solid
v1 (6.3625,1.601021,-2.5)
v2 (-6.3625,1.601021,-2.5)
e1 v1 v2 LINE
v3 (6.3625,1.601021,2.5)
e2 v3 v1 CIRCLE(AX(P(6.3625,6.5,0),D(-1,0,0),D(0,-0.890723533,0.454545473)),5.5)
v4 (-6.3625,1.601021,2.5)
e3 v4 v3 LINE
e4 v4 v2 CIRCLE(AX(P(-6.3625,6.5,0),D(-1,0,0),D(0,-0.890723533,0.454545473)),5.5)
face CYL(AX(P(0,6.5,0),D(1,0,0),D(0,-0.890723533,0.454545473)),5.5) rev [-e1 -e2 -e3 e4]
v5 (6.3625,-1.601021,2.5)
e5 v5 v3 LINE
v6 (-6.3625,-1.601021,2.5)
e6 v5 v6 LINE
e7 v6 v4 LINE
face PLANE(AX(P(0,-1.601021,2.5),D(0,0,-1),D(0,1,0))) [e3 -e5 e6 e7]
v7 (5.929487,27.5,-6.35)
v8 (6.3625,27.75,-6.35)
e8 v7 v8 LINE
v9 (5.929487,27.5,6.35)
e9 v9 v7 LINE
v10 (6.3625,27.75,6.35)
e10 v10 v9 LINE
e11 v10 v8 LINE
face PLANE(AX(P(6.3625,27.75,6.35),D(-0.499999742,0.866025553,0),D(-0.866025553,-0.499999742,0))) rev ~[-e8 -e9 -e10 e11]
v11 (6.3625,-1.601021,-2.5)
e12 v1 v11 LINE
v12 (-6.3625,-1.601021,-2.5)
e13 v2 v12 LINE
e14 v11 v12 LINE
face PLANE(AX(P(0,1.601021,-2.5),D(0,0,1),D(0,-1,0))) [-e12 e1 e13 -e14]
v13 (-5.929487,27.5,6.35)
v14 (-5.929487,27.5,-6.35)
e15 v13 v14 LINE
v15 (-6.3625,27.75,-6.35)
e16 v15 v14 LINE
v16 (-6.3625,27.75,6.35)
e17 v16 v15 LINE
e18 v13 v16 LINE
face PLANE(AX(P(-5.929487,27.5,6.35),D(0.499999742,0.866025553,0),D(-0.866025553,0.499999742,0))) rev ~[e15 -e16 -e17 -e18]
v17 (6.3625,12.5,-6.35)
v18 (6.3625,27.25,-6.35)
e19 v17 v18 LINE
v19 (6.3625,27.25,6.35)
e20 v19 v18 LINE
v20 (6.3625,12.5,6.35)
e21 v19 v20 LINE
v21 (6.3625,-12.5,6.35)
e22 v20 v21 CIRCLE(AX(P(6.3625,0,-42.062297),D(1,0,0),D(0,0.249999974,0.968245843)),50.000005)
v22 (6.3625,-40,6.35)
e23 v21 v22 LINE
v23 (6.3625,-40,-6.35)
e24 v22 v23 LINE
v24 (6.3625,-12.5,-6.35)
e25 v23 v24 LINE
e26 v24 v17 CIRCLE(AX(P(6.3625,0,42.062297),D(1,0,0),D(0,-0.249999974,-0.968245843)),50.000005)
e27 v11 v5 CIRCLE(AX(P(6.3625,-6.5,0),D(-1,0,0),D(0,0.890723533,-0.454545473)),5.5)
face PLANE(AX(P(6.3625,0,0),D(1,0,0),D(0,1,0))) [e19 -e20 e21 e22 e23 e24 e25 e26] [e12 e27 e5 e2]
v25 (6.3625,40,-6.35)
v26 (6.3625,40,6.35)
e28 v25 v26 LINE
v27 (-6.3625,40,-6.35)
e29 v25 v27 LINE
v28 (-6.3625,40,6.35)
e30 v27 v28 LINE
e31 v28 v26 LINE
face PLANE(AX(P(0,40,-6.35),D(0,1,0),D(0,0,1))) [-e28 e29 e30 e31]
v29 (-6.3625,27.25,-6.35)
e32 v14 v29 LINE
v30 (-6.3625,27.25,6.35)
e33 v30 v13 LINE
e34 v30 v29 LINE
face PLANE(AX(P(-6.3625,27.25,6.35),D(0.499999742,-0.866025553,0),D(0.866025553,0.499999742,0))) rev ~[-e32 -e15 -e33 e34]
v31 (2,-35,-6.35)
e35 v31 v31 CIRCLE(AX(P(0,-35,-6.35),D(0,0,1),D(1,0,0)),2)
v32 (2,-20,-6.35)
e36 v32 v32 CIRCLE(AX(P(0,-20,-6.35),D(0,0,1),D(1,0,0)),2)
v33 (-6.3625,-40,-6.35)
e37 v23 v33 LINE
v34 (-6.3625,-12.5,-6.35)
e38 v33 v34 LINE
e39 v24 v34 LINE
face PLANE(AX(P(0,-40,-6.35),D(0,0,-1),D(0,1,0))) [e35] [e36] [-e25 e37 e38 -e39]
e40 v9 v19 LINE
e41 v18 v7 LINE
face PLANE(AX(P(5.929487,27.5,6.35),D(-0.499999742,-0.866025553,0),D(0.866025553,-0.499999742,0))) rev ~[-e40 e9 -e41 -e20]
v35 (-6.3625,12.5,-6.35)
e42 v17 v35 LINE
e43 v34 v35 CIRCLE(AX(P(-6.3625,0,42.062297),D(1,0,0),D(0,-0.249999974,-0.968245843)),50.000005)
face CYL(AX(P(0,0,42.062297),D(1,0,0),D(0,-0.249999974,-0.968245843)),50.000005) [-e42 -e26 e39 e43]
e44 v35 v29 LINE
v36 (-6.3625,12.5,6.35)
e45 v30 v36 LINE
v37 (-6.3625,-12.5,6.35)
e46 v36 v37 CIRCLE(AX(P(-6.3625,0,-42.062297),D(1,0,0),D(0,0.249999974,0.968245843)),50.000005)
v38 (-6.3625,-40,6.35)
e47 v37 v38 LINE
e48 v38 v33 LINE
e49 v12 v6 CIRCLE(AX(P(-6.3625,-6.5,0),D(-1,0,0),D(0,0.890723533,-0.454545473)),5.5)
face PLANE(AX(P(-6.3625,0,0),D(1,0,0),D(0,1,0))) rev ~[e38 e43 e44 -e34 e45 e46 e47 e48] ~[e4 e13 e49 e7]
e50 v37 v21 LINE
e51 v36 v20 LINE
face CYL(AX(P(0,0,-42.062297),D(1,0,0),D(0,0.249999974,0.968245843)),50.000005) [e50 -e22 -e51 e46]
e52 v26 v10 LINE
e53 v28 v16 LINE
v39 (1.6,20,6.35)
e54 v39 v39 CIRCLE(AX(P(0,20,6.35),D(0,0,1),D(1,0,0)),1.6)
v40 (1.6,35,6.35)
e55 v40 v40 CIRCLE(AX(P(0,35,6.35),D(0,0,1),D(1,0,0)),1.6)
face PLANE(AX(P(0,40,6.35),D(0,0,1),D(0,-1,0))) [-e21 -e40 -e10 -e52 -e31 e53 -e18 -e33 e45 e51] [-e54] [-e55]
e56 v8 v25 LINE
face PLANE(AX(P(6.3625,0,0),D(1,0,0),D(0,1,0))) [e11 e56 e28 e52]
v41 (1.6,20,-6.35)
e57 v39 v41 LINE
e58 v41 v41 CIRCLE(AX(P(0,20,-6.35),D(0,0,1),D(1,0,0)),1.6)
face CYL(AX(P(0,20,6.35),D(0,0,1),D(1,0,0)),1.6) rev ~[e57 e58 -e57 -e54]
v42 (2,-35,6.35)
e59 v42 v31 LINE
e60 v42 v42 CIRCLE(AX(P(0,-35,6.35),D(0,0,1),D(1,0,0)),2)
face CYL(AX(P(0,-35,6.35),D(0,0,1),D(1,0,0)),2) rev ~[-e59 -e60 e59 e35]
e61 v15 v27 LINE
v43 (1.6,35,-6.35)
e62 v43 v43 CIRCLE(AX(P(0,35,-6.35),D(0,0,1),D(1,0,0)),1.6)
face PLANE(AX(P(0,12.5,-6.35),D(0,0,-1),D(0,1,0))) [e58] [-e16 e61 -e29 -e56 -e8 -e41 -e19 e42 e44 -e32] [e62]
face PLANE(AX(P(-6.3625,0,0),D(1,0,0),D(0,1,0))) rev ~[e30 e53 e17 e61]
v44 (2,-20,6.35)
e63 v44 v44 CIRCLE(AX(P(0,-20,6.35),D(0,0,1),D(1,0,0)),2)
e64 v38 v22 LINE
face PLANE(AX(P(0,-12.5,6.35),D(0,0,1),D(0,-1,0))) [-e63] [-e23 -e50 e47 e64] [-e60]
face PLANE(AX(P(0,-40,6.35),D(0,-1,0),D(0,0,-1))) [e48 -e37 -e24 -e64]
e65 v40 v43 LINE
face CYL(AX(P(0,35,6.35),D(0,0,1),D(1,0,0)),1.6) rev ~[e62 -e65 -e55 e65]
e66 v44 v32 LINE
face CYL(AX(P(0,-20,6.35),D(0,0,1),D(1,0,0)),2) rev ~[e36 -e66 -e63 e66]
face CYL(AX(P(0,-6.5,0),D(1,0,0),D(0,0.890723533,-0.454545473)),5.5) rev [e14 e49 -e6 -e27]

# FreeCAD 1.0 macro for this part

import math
import FreeCAD as App
import Part
import Sketcher

V = App.Vector
Q = App.Units.Quantity


def add_polygon(sketch, points):
    """Adds a closed chain of lines whose ends are joined by coincident constraints."""
    first, n = sketch.GeometryCount, len(points)
    for a, b in zip(points, points[1:] + points[:1]):
        sketch.addGeometry(Part.LineSegment(App.Vector(*a, 0), App.Vector(*b, 0)), False)
    for i in range(n):
        sketch.addConstraint(Sketcher.Constraint("Coincident", first + i, 2, first + (i + 1) % n, 1))

doc = App.newDocument("Part")
body = doc.addObject("PartDesign::Body", "Body")

# Sketch on YZ plane
sketch1 = body.newObject("Sketcher::SketchObject", "Sketch")
sketch1.AttachmentSupport = (doc.getObject("YZ_Plane"), [""])
sketch1.MapMode = "FlatFace"
sketch1.addGeometry([
    Part.LineSegment(V(40, -6.3, 0), V(40, 6.3, 0)),  # 0
    Part.LineSegment(V(40, 6.3, 0), V(12.5, 6.3, 0)),  # 1
    Part.ArcOfCircle(Part.Circle(V(0, -42.1, 0), V(0, 0, 1), 50), math.radians(76), math.radians(104)),  # 2
    Part.LineSegment(V(-12.5, 6.3, 0), V(-40, 6.3, 0)),  # 3
    Part.LineSegment(V(-40, 6.3, 0), V(-40, -6.3, 0)),  # 4
    Part.LineSegment(V(-40, -6.3, 0), V(-12.5, -6.3, 0)),  # 5
    Part.ArcOfCircle(Part.Circle(V(0, 42.1, 0), V(0, 0, 1), 50), math.radians(-104), math.radians(-76)),  # 6
    Part.LineSegment(V(12.5, -6.3, 0), V(40, -6.3, 0)),  # 7
    Part.LineSegment(V(-1.6, 2.5, 0), V(1.6, 2.5, 0)),  # 8
    Part.ArcOfCircle(Part.Circle(V(6.5, 0, 0), V(0, 0, 1), 5.5), math.radians(-153), math.radians(153)),  # 9
    Part.LineSegment(V(1.6, -2.5, 0), V(-1.6, -2.5, 0)),  # 10
    Part.ArcOfCircle(Part.Circle(V(-6.5, 0, 0), V(0, 0, 1), 5.5), math.radians(27), math.radians(333)),  # 11
], False)
sketch1.addConstraint([
    Sketcher.Constraint("Coincident", 0, 2, 1, 1),
    Sketcher.Constraint("Coincident", 1, 2, 2, 1),
    Sketcher.Constraint("Coincident", 2, 2, 3, 1),
    Sketcher.Constraint("Coincident", 3, 2, 4, 1),
    Sketcher.Constraint("Coincident", 4, 2, 5, 1),
    Sketcher.Constraint("Coincident", 5, 2, 6, 1),
    Sketcher.Constraint("Coincident", 6, 2, 7, 1),
    Sketcher.Constraint("Coincident", 7, 2, 0, 1),
    Sketcher.Constraint("Coincident", 8, 2, 9, 2),
    Sketcher.Constraint("Coincident", 9, 1, 10, 1),
    Sketcher.Constraint("Coincident", 10, 2, 11, 2),
    Sketcher.Constraint("Coincident", 11, 1, 8, 1),
    Sketcher.Constraint("Vertical", 0),
    Sketcher.Constraint("Horizontal", 1),
    Sketcher.Constraint("Horizontal", 3),
    Sketcher.Constraint("Vertical", 4),
    Sketcher.Constraint("Horizontal", 5),
    Sketcher.Constraint("Horizontal", 7),
    Sketcher.Constraint("Horizontal", 8),
    Sketcher.Constraint("Horizontal", 10),
    Sketcher.Constraint("Equal", 2, 6),
    Sketcher.Constraint("Equal", 9, 11),
    Sketcher.Constraint("Symmetric", 2, 3, 6, 3, -1, 1),
    Sketcher.Constraint("Symmetric", 9, 3, 11, 3, -1, 1),
    Sketcher.Constraint("Symmetric", 0, 2, 4, 2, -1, 1),
    Sketcher.Constraint("Symmetric", 1, 2, 2, 2, -2),
    Sketcher.Constraint("Symmetric", 8, 2, 9, 1, -1),
    Sketcher.Constraint("Horizontal", 5, 2, 6, 2),
    Sketcher.Constraint("Radius", 9, Q("5.5 mm")),
    Sketcher.Constraint("DistanceX", 1, 2, 1, 1, Q("27.5 mm")),
    Sketcher.Constraint("DistanceY", 0, 1, 0, 2, Q("12.7 mm")),
    Sketcher.Constraint("DistanceX", -1, 1, 0, 2, Q("40 mm")),
    Sketcher.Constraint("DistanceX", 11, 3, 9, 3, Q("13 mm")),
    Sketcher.Constraint("DistanceY", 9, 1, 8, 2, Q("5 mm")),
    Sketcher.Constraint("Radius", 2, Q("50.000005 mm")),
])
pad1 = body.newObject("PartDesign::Pad", "Pad")
pad1.Profile = sketch1
pad1.Length = 12.725
pad1.Midplane = True

# Sketch on XY plane
sketch2 = body.newObject("Sketcher::SketchObject", "Sketch001")
sketch2.AttachmentSupport = (doc.getObject("XY_Plane"), [""])
sketch2.MapMode = "FlatFace"
sketch2.AttachmentOffset = App.Placement(V(0, 0, 6.35), App.Rotation())
sketch2.addGeometry(Part.Circle(V(0, -20, 0), V(0, 0, 1), 2), False)  # 0
sketch2.addGeometry(Part.Circle(V(0, -35, 0), V(0, 0, 1), 2), False)  # 1
sketch2.addGeometry(Part.Circle(V(0, 20, 0), V(0, 0, 1), 1.6), False)  # 2
sketch2.addGeometry(Part.Circle(V(0, 35, 0), V(0, 0, 1), 1.6), False)  # 3
add_polygon(sketch2, [(6.4, 27.2), (6.4, 27.8), (5.9, 27.5)])  # lines 4-6
add_polygon(sketch2, [(-5.9, 27.5), (-6.4, 27.8), (-6.4, 27.2)])  # lines 7-9
sketch2.addConstraint([
    Sketcher.Constraint("Vertical", 4),
    Sketcher.Constraint("Vertical", 8),
    Sketcher.Constraint("Equal", 0, 1),
    Sketcher.Constraint("Equal", 2, 3),
    Sketcher.Constraint("Symmetric", 0, 3, 2, 3, -1, 1),
    Sketcher.Constraint("Symmetric", 1, 3, 3, 3, -1, 1),
    Sketcher.Constraint("Symmetric", 4, 2, 7, 2, -2),
    Sketcher.Constraint("Symmetric", 5, 2, 9, 2, -2),
    Sketcher.Constraint("PointOnObject", 0, 3, -2),
    Sketcher.Constraint("PointOnObject", 1, 3, -2),
    Sketcher.Constraint("Parallel", 6, 7),
    Sketcher.Constraint("Parallel", 5, 9),
    Sketcher.Constraint("Diameter", 0, Q("4 mm")),
    Sketcher.Constraint("Diameter", 2, Q("3.2 mm")),
    Sketcher.Constraint("Angle", 5, Q("-150.000017 deg")),
    Sketcher.Constraint("DistanceY", 4, 1, 4, 2, Q("0.5 mm")),
    Sketcher.Constraint("DistanceY", 0, 3, -1, 1, Q("20 mm")),
    Sketcher.Constraint("DistanceY", 1, 3, -1, 1, Q("35 mm")),
    Sketcher.Constraint("DistanceY", -1, 1, 5, 2, Q("27.5 mm")),
    Sketcher.Constraint("DistanceX", 7, 2, 4, 2, Q("12.725 mm")),
])
pocket1 = body.newObject("PartDesign::Pocket", "Pocket")
pocket1.Profile = sketch2
pocket1.Type = "ThroughAll"

doc.recompute()
